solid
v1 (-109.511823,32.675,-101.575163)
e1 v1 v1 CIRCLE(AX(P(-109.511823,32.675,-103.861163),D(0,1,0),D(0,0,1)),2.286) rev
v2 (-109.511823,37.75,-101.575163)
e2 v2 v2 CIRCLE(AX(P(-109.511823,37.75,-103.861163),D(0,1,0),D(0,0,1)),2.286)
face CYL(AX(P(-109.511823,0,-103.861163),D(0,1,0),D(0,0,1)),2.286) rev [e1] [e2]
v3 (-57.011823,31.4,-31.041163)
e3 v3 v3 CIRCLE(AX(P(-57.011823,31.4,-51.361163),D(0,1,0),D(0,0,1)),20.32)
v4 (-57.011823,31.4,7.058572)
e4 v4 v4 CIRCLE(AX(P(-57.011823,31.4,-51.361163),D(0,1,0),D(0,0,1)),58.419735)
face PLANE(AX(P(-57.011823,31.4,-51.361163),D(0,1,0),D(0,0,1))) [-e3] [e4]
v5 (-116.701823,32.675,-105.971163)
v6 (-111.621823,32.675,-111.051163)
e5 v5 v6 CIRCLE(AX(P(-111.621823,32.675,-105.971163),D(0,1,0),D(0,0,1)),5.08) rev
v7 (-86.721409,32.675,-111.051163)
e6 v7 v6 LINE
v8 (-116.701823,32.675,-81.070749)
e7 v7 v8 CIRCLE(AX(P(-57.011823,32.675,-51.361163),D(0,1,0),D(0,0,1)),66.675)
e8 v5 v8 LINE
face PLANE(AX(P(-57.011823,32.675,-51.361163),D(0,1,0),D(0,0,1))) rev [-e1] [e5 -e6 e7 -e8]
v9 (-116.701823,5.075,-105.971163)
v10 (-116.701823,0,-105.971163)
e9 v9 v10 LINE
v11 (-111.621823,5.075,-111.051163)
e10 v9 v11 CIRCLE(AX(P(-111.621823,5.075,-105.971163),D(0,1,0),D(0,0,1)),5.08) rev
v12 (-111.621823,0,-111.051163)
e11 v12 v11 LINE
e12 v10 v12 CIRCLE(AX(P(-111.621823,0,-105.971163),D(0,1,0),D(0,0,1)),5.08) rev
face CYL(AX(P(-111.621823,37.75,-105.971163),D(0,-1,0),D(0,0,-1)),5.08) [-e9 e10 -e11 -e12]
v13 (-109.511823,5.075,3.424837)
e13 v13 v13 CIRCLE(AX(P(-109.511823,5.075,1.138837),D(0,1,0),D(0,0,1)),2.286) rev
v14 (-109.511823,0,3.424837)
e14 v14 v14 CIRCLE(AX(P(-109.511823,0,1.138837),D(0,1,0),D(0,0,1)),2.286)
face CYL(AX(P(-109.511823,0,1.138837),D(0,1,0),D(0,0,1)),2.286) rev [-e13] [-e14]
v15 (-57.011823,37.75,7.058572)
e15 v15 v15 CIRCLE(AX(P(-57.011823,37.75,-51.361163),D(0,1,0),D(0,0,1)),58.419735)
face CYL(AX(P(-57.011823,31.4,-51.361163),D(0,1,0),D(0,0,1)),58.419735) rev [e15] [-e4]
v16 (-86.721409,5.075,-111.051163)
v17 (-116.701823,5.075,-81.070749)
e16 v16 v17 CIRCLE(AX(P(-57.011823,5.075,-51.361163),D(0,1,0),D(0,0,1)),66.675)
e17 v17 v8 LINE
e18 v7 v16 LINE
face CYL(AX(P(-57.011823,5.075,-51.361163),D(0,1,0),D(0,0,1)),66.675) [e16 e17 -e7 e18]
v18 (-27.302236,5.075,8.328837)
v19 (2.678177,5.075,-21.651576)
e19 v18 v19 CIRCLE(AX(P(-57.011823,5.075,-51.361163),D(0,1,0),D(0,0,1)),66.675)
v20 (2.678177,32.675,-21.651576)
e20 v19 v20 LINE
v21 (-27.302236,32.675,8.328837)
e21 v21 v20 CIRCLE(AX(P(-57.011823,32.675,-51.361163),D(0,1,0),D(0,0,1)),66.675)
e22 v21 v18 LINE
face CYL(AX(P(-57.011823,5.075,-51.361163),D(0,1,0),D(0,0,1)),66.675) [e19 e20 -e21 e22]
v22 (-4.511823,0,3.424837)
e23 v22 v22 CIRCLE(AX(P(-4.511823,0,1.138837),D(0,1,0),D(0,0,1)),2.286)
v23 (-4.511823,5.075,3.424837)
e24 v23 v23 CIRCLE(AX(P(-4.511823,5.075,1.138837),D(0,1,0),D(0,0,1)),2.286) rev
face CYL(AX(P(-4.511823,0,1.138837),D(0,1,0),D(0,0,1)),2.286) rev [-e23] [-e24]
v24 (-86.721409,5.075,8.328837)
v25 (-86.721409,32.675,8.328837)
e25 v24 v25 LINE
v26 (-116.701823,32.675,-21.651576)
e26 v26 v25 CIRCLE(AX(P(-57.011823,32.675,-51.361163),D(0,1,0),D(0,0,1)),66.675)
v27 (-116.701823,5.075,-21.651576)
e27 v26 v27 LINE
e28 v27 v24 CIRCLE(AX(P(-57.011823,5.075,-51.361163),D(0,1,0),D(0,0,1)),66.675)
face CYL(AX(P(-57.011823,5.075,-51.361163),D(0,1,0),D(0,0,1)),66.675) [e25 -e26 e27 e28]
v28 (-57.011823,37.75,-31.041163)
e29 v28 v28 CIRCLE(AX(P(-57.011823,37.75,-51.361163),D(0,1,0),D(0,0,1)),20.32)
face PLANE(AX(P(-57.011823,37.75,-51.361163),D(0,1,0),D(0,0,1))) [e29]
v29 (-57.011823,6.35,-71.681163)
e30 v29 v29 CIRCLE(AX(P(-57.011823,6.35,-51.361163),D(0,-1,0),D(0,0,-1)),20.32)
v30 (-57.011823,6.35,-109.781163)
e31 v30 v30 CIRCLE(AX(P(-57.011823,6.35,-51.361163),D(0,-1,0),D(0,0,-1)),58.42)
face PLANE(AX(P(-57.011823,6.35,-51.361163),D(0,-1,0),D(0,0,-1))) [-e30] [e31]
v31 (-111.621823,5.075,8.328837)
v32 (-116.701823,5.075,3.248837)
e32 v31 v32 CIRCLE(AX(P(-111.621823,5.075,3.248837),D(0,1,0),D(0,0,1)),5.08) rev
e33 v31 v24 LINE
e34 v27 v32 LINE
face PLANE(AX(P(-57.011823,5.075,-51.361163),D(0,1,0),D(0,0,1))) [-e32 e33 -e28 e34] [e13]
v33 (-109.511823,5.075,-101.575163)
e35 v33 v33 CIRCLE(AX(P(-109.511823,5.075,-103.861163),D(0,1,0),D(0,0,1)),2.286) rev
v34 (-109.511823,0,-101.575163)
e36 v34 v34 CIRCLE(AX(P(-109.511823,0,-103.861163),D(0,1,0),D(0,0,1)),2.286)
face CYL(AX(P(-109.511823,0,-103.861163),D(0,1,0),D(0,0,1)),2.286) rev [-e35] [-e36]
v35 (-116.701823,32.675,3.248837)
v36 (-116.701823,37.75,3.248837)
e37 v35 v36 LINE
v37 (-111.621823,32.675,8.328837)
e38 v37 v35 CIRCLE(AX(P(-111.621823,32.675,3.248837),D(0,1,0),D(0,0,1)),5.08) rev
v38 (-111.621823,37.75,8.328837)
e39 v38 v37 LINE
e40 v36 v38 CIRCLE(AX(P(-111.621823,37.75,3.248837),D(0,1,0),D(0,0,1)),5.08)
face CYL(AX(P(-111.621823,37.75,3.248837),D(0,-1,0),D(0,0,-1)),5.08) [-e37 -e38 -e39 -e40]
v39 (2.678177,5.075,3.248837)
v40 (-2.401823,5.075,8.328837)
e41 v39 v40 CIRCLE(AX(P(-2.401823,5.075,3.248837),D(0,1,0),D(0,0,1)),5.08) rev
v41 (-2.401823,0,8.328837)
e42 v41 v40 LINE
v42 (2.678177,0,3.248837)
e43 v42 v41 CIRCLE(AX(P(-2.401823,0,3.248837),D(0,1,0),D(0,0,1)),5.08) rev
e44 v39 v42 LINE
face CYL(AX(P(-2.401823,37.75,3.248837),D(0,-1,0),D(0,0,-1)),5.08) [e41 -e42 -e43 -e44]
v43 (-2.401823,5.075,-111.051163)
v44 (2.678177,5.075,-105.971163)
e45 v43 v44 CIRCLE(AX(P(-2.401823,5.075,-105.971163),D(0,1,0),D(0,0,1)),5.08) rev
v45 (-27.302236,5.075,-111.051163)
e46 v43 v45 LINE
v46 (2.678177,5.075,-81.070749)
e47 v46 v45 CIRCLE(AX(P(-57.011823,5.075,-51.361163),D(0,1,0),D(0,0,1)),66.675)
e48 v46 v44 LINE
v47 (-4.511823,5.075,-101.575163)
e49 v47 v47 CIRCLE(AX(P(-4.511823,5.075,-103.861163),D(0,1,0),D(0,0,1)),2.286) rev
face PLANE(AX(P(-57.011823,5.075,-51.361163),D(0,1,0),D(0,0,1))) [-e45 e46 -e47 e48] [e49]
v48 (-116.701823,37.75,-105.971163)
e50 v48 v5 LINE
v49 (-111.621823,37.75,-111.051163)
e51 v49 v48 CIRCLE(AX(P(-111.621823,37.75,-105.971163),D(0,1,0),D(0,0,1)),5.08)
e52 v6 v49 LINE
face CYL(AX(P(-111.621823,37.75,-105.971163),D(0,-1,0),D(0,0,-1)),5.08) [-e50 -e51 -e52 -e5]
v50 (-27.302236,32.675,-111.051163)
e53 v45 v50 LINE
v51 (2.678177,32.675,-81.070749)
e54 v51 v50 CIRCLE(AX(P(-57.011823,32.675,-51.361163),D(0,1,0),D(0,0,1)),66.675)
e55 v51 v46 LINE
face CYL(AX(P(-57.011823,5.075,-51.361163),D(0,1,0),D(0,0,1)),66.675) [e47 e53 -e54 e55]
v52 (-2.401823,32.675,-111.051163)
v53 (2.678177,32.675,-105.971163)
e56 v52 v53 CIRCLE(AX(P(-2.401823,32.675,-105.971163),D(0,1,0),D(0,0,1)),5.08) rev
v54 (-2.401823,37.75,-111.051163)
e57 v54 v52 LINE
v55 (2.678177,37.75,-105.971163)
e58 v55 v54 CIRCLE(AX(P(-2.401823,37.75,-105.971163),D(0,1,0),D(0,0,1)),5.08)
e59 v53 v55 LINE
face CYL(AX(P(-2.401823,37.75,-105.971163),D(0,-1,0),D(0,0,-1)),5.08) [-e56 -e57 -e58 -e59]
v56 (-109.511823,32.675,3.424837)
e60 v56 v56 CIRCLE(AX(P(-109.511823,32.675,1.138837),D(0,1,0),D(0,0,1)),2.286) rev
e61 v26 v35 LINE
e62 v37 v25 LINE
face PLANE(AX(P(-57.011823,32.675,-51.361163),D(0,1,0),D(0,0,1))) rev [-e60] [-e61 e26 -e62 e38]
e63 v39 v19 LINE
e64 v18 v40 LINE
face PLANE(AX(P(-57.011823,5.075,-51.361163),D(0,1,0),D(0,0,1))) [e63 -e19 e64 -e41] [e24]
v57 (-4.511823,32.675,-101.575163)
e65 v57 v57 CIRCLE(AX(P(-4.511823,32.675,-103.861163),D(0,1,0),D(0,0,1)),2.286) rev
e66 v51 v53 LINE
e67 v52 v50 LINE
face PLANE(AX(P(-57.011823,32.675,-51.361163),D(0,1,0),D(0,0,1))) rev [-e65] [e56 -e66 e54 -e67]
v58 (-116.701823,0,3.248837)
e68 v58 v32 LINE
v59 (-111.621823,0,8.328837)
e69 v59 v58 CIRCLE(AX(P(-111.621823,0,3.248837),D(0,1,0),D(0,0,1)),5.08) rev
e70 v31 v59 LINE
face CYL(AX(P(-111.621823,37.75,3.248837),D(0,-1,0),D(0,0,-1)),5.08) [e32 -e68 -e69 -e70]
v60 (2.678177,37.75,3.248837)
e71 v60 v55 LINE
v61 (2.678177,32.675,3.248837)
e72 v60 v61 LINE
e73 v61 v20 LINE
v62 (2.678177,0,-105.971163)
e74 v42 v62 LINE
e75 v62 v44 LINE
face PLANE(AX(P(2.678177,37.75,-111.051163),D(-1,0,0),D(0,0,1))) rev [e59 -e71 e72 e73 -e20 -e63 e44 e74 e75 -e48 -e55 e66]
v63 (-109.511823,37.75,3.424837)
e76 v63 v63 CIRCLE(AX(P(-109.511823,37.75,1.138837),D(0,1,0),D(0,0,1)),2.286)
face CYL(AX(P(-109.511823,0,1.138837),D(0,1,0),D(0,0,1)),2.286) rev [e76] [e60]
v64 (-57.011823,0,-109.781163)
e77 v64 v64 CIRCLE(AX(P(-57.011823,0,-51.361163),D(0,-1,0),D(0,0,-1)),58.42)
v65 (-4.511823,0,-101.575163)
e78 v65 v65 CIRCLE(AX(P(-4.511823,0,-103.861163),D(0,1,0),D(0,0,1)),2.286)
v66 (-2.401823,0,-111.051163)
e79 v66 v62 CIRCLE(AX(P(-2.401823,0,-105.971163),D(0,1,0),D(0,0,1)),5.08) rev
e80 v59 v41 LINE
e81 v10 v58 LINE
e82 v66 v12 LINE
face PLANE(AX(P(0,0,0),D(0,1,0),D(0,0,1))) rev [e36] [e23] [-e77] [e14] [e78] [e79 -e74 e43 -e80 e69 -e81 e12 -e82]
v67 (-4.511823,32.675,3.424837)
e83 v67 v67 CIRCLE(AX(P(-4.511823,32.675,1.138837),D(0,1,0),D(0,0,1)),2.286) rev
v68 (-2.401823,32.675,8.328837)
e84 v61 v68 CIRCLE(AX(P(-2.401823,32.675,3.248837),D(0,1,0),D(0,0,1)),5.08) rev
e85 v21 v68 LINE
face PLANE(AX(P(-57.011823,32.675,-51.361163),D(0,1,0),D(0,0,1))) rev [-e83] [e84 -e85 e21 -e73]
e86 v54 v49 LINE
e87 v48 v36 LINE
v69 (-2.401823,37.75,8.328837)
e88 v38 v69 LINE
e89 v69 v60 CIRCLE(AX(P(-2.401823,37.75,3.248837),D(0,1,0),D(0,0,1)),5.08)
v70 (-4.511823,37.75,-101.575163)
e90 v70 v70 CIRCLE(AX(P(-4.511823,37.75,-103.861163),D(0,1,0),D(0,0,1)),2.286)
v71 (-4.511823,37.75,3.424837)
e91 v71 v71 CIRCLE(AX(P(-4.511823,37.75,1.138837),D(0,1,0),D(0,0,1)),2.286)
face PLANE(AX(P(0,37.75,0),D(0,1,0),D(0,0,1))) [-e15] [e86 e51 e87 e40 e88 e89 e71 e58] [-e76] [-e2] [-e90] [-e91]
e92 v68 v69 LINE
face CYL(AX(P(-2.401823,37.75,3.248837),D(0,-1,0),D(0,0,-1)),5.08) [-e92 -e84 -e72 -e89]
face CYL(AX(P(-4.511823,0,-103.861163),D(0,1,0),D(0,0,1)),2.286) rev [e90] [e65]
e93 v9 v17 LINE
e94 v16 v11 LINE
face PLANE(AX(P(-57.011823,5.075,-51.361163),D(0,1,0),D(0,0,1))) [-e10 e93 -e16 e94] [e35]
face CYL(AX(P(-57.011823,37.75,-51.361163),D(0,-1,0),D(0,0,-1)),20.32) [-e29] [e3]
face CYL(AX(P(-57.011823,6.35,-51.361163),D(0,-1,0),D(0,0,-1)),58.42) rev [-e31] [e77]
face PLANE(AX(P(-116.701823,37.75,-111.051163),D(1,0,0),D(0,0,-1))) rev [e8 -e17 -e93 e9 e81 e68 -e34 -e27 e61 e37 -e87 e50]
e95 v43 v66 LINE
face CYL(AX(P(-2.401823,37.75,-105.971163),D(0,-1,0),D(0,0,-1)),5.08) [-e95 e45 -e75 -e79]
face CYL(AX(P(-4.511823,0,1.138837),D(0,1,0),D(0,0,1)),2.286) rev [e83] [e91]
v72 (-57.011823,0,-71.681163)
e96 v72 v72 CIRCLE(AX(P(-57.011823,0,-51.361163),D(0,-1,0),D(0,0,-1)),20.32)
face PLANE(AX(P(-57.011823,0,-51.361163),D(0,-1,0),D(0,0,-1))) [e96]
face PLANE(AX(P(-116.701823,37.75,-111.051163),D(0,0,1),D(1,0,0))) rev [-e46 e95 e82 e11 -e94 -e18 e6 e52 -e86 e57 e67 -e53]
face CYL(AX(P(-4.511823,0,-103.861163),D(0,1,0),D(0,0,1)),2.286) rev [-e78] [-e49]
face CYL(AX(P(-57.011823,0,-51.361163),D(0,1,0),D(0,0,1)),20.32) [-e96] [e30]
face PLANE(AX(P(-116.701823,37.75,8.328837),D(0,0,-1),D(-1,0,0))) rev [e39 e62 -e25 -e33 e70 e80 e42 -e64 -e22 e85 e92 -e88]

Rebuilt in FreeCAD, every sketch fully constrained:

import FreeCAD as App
import Part
import Sketcher

V = App.Vector
Q = App.Units.Quantity


def edges_at(feature, points):
    """Names of the edges that pass closest to the given points."""
    edges = feature.Shape.Edges
    near = lambda p: min(range(len(edges)), key=lambda i: edges[i].distToShape(Part.Vertex(*p))[0])
    return sorted({f"Edge{near(p) + 1}" for p in points})

doc = App.newDocument("Part")
params = doc.addObject("Spreadsheet::Sheet", "Params")
for row, (alias, value) in enumerate([
    ("sketch1_width", "4.7 in"),
    ("pad1_length", "37.75 mm"),
    ("sketch2_diameter", "0.18 in"),
    ("pocket2_length", "0.25 in"),
    ("sketch4_diameter", "4.6 in"),
    ("pocket3_length", "0.25 in"),
    ("sketch5_diameter", "1.6 in"),
    ("pad2_length", "0.25 in"),
    ("sketch6_diameter", "1.6 in"),
    ("pad3_length", "0.25 in"),
    ("fillet_radius", "0.2 in"),
    ("sketch7_diameter", "7 in"),
    ("sketch7_diameter2", "5.25 in"),
    ("pocket4_length", "27.6 mm"),
], start=1):
    params.set(f"A{row}", alias)
    params.set(f"B{row}", "=" + value)
    params.setAlias(f"B{row}", alias)

body = doc.addObject("PartDesign::Body", "Body")

# Sketch on XZ plane
sketch1 = body.newObject("Sketcher::SketchObject", "Sketch")
sketch1.AttachmentSupport = (doc.getObject("XZ_Plane"), [""])
sketch1.MapMode = "FlatFace"
sketch1.addGeometry([
    Part.LineSegment(V(-116.701823, -111.051163, 0), V(-116.701823, 8.328837, 0)),
    Part.LineSegment(V(-116.701823, 8.328837, 0), V(2.678177, 8.328837, 0)),
    Part.LineSegment(V(2.678177, 8.328837, 0), V(2.678177, -111.051163, 0)),
    Part.LineSegment(V(2.678177, -111.051163, 0), V(-116.701823, -111.051163, 0)),
], False)
sketch1.addConstraint([
    Sketcher.Constraint("Coincident", 0, 2, 1, 1),
    Sketcher.Constraint("Coincident", 1, 2, 2, 1),
    Sketcher.Constraint("Coincident", 2, 2, 3, 1),
    Sketcher.Constraint("Coincident", 3, 2, 0, 1),
    Sketcher.Constraint("Vertical", 0),
    Sketcher.Constraint("Horizontal", 1),
    Sketcher.Constraint("Vertical", 2),
    Sketcher.Constraint("Horizontal", 3),
    Sketcher.Constraint("Equal", 3, 0),
    Sketcher.Constraint("DistanceX", 1, 1, 1, 2, Q("4.7 in")),
    Sketcher.Constraint("DistanceX", 0, 2, -1, 1, Q("116.701823 mm")),
    Sketcher.Constraint("DistanceY", -1, 1, 0, 2, Q("8.328837 mm")),
])
sketch1.setExpression("Constraints[9]", "Params.sketch1_width")
pad1 = body.newObject("PartDesign::Pad", "Pad")
pad1.Profile = sketch1
pad1.setExpression("Length", "Params.pad1_length")
pad1.Reversed = True

# Sketch on XZ plane
sketch2 = body.newObject("Sketcher::SketchObject", "Sketch001")
sketch2.AttachmentSupport = (doc.getObject("XZ_Plane"), [""])
sketch2.MapMode = "FlatFace"
sketch2.AttachmentOffset = App.Placement(V(0, 0, -37.75), App.Rotation())
sketch2.addGeometry([
    Part.Circle(V(-109.511823, -103.861163, 0), V(0, 0, 1), 2.286),
    Part.Circle(V(-4.511823, -103.861163, 0), V(0, 0, 1), 2.286),
    Part.Circle(V(-4.511823, 1.138837, 0), V(0, 0, 1), 2.286),
    Part.Circle(V(-109.511823, 1.138837, 0), V(0, 0, 1), 2.286),
], False)
sketch2.addConstraint([
    Sketcher.Constraint("Equal", 0, 1),
    Sketcher.Constraint("Equal", 1, 2),
    Sketcher.Constraint("Equal", 2, 3),
    Sketcher.Constraint("Horizontal", 0, 3, 1, 3),
    Sketcher.Constraint("Horizontal", 2, 3, 3, 3),
    Sketcher.Constraint("Vertical", 1, 3, 2, 3),
    Sketcher.Constraint("Vertical", 0, 3, 3, 3),
    Sketcher.Constraint("Diameter", 0, Q("0.18 in")),
    Sketcher.Constraint("DistanceX", 0, 3, 1, 3, Q("105 mm")),
    Sketcher.Constraint("DistanceY", 1, 3, 2, 3, Q("105 mm")),
    Sketcher.Constraint("DistanceX", 0, 3, -1, 1, Q("109.511823 mm")),
    Sketcher.Constraint("DistanceY", 0, 3, -1, 1, Q("103.861163 mm")),
])
sketch2.setExpression("Constraints[7]", "Params.sketch2_diameter")
pocket1 = body.newObject("PartDesign::Pocket", "Pocket")
pocket1.Profile = sketch2
pocket1.Type = "ThroughAll"
pocket1.Reversed = True

# Sketch on XZ plane
sketch3 = body.newObject("Sketcher::SketchObject", "Sketch002")
sketch3.AttachmentSupport = (doc.getObject("XZ_Plane"), [""])
sketch3.MapMode = "FlatFace"
sketch3.AttachmentOffset = App.Placement(V(0, 0, -37.75), App.Rotation())
sketch3.addGeometry(Part.Circle(V(-57.011823, -51.361163, 0), V(0, 0, 1), 58.419735), False)
sketch3.addConstraint([
    Sketcher.Constraint("Diameter", 0, Q("116.839469 mm")),
    Sketcher.Constraint("DistanceX", 0, 3, -1, 1, Q("57.011823 mm")),
    Sketcher.Constraint("DistanceY", 0, 3, -1, 1, Q("51.361163 mm")),
])
pocket2 = body.newObject("PartDesign::Pocket", "Pocket001")
pocket2.Profile = sketch3
pocket2.setExpression("Length", "Params.pocket2_length")
pocket2.Reversed = True

# Sketch on XZ plane
sketch4 = body.newObject("Sketcher::SketchObject", "Sketch003")
sketch4.AttachmentSupport = (doc.getObject("XZ_Plane"), [""])
sketch4.MapMode = "FlatFace"
sketch4.addGeometry(Part.Circle(V(-57.011823, -51.361163, 0), V(0, 0, 1), 58.42), False)
sketch4.addConstraint([
    Sketcher.Constraint("Diameter", 0, Q("4.6 in")),
    Sketcher.Constraint("DistanceX", 0, 3, -1, 1, Q("57.011823 mm")),
    Sketcher.Constraint("DistanceY", 0, 3, -1, 1, Q("51.361163 mm")),
])
sketch4.setExpression("Constraints[0]", "Params.sketch4_diameter")
pocket3 = body.newObject("PartDesign::Pocket", "Pocket002")
pocket3.Profile = sketch4
pocket3.setExpression("Length", "Params.pocket3_length")

# Sketch on XZ plane
sketch5 = body.newObject("Sketcher::SketchObject", "Sketch004")
sketch5.AttachmentSupport = (doc.getObject("XZ_Plane"), [""])
sketch5.MapMode = "FlatFace"
sketch5.AttachmentOffset = App.Placement(V(0, 0, -0.25 * 25.4), App.Rotation())
sketch5.addGeometry(Part.Circle(V(-57.011823, -51.361163, 0), V(0, 0, 1), 20.32), False)
sketch5.addConstraint([
    Sketcher.Constraint("Diameter", 0, Q("1.6 in")),
    Sketcher.Constraint("DistanceX", 0, 3, -1, 1, Q("57.011823 mm")),
    Sketcher.Constraint("DistanceY", 0, 3, -1, 1, Q("51.361163 mm")),
])
sketch5.setExpression("Constraints[0]", "Params.sketch5_diameter")
pad2 = body.newObject("PartDesign::Pad", "Pad001")
pad2.Profile = sketch5
pad2.setExpression("Length", "Params.pad2_length")

# Sketch on XZ plane
sketch6 = body.newObject("Sketcher::SketchObject", "Sketch005")
sketch6.AttachmentSupport = (doc.getObject("XZ_Plane"), [""])
sketch6.MapMode = "FlatFace"
sketch6.AttachmentOffset = App.Placement(V(0, 0, -31.4), App.Rotation())
sketch6.addGeometry(Part.Circle(V(-57.011823, -51.361163, 0), V(0, 0, 1), 20.32), False)
sketch6.addConstraint([
    Sketcher.Constraint("Diameter", 0, Q("1.6 in")),
    Sketcher.Constraint("DistanceX", 0, 3, -1, 1, Q("57.011823 mm")),
    Sketcher.Constraint("DistanceY", 0, 3, -1, 1, Q("51.361163 mm")),
])
sketch6.setExpression("Constraints[0]", "Params.sketch6_diameter")
pad3 = body.newObject("PartDesign::Pad", "Pad002")
pad3.Profile = sketch6
pad3.setExpression("Length", "Params.pad3_length")
pad3.Reversed = True
doc.recompute()

fillet = body.newObject("PartDesign::Fillet", "Fillet")
fillet.Base = (pad3, edges_at(pad3, [
    (2.678, 18.875, 8.329),
    (-116.702, 18.875, 8.329),
    (-116.702, 18.875, -111.051),
    (2.678, 18.875, -111.051),
]))
fillet.setExpression("Radius", "Params.fillet_radius")

# Sketch on XZ plane
sketch7 = body.newObject("Sketcher::SketchObject", "Sketch006")
sketch7.AttachmentSupport = (doc.getObject("XZ_Plane"), [""])
sketch7.MapMode = "FlatFace"
sketch7.AttachmentOffset = App.Placement(V(0, 0, -18.875), App.Rotation())
sketch7.addGeometry([
    Part.Circle(V(-57.011823, -51.361163, 0), V(0, 0, 1), 88.9),
    Part.Circle(V(-57.011823, -51.361163, 0), V(0, 0, 1), 66.675),
], False)
sketch7.addConstraint([
    Sketcher.Constraint("Coincident", 1, 3, 0, 3),
    Sketcher.Constraint("Diameter", 0, Q("7 in")),
    Sketcher.Constraint("Diameter", 1, Q("5.25 in")),
    Sketcher.Constraint("DistanceX", 0, 3, -1, 1, Q("57.011823 mm")),
    Sketcher.Constraint("DistanceY", 0, 3, -1, 1, Q("51.361163 mm")),
])
sketch7.setExpression("Constraints[1]", "Params.sketch7_diameter")
sketch7.setExpression("Constraints[2]", "Params.sketch7_diameter2")
pocket4 = body.newObject("PartDesign::Pocket", "Pocket003")
pocket4.Profile = sketch7
pocket4.setExpression("Length", "Params.pocket4_length")
pocket4.Midplane = True

doc.recompute()
